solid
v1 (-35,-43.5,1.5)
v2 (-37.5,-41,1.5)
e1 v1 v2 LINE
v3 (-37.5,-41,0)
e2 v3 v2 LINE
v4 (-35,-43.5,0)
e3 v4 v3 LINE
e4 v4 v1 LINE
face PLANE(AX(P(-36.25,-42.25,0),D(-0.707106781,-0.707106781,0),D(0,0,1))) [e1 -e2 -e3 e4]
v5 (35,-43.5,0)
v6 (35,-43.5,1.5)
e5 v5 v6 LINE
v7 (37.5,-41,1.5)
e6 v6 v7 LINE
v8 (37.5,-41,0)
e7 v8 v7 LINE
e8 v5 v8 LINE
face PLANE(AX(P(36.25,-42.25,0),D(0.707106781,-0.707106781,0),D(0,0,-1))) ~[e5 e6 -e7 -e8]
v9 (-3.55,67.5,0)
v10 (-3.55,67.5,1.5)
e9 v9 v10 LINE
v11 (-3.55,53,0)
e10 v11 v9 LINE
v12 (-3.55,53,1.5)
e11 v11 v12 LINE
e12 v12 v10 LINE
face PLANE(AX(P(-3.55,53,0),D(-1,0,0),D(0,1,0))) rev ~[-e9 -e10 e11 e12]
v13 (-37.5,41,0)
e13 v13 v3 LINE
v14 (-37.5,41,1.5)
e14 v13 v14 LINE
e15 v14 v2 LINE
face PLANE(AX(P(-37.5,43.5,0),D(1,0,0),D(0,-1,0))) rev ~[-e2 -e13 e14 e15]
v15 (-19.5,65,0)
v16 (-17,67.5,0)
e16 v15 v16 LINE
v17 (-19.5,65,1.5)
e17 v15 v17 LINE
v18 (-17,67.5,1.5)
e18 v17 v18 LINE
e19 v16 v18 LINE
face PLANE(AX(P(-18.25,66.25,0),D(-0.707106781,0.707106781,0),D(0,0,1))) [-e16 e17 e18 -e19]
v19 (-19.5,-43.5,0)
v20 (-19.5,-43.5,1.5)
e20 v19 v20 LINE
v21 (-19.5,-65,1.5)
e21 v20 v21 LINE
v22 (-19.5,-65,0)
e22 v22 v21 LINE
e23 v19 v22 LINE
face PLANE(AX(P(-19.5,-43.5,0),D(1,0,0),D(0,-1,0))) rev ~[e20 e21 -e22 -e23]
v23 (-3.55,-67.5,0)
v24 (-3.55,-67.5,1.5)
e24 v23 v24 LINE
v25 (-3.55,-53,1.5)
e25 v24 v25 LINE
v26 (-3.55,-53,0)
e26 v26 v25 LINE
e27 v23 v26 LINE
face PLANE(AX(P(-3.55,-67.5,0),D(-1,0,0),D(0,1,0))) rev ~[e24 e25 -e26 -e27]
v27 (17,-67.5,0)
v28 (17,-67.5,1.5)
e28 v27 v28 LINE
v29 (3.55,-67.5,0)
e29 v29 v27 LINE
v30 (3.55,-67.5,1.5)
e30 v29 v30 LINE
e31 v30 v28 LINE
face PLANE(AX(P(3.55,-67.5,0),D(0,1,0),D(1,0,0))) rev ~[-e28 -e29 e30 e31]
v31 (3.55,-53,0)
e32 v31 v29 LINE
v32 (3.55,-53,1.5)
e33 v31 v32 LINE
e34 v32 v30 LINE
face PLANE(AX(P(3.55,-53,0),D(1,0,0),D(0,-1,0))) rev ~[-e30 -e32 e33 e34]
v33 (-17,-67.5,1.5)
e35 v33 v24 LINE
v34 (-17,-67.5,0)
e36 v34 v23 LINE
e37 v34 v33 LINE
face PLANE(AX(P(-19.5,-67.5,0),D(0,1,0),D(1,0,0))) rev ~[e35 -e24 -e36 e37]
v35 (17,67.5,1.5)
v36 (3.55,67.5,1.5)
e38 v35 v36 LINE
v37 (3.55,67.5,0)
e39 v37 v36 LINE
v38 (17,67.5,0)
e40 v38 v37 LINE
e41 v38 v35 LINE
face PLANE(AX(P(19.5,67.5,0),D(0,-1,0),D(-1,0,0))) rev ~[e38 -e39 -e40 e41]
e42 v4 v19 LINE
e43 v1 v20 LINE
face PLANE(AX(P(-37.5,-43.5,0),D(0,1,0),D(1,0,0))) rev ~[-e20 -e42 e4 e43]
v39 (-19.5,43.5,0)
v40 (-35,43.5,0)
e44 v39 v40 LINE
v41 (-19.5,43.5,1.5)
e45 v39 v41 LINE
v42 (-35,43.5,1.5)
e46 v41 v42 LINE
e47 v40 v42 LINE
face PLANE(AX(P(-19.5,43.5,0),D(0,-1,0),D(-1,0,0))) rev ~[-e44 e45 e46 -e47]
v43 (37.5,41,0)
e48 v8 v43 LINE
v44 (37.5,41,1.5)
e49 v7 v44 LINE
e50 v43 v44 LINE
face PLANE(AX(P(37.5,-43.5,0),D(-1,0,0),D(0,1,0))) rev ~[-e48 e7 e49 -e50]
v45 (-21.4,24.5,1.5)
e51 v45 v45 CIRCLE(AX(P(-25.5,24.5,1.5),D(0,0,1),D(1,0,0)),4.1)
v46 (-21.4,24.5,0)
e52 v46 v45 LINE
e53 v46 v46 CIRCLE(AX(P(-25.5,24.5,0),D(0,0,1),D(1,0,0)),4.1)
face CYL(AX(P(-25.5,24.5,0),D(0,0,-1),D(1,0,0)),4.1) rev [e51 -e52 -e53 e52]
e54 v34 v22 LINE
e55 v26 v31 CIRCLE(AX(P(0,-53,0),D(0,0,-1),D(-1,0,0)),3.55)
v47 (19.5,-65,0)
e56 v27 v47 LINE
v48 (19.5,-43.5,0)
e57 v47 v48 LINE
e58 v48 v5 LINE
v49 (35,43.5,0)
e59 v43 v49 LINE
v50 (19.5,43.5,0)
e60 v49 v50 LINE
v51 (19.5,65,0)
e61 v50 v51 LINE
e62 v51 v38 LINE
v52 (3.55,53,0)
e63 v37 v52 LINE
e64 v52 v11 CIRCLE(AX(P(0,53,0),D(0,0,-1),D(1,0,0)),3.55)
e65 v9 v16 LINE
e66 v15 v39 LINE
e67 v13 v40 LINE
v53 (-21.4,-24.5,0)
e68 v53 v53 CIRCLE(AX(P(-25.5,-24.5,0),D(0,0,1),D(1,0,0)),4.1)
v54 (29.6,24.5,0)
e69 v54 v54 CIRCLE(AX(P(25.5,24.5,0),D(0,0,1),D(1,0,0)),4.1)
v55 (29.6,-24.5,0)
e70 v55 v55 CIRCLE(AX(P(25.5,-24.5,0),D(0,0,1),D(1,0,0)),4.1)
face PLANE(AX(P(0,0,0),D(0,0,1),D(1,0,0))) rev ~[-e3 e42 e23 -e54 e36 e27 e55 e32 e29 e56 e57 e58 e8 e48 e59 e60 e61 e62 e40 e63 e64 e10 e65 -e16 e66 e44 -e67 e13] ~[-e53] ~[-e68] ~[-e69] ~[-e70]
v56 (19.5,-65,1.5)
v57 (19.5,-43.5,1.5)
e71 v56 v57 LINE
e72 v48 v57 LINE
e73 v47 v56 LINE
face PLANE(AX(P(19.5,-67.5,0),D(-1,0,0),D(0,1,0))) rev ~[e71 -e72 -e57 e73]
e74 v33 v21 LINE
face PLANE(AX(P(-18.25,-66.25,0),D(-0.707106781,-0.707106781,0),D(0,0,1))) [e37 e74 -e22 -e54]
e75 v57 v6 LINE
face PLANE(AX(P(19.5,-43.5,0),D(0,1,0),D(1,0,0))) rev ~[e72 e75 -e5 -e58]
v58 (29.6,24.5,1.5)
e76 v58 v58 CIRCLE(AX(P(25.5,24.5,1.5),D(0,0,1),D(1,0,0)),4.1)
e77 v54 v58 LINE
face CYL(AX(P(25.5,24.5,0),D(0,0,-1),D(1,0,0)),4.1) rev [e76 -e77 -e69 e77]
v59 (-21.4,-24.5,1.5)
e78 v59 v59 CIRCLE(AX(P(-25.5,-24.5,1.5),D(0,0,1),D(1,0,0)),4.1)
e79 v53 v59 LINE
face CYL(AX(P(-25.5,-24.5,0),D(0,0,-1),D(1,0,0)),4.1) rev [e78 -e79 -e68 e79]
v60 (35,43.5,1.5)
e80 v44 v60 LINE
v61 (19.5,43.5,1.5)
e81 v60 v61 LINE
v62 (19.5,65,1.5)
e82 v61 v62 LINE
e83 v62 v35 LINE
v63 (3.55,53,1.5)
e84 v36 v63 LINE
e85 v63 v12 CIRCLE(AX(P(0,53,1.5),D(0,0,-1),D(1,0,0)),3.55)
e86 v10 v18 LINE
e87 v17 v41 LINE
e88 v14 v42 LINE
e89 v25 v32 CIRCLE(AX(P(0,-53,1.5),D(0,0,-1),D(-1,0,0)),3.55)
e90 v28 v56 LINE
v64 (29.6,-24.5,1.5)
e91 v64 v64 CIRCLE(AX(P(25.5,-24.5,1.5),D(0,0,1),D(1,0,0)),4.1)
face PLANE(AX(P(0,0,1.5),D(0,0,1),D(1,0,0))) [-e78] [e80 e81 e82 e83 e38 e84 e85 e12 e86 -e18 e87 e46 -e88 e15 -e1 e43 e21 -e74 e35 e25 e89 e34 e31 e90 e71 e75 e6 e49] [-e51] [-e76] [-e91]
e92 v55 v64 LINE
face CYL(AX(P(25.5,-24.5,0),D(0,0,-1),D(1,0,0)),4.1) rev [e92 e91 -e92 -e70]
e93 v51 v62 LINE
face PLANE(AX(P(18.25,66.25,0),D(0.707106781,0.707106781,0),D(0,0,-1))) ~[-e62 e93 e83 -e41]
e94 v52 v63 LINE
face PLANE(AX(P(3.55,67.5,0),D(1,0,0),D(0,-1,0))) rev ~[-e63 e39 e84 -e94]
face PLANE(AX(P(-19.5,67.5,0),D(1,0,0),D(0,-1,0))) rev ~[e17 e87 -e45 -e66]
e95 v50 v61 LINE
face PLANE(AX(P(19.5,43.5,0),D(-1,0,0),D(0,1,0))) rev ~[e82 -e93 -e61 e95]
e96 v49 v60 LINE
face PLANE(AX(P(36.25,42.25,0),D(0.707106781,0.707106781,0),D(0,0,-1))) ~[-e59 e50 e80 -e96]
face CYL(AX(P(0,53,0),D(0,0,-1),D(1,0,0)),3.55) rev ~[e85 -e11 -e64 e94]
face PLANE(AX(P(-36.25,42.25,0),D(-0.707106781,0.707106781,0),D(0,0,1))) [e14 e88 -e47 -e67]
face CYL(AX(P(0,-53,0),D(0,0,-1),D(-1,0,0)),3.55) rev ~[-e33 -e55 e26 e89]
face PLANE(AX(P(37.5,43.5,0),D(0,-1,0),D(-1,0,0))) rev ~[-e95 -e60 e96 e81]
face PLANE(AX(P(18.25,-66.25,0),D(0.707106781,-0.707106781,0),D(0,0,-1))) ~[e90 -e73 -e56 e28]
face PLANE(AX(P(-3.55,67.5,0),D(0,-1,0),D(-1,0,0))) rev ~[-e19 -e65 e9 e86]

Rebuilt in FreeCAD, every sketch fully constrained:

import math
import FreeCAD as App
import Part
import Sketcher

V = App.Vector
Q = App.Units.Quantity


def edges_at(feature, points):
    """Names of the edges that pass closest to the given points."""
    edges = feature.Shape.Edges
    near = lambda p: min(range(len(edges)), key=lambda i: edges[i].distToShape(Part.Vertex(*p))[0])
    return sorted({f"Edge{near(p) + 1}" for p in points})

doc = App.newDocument("Part")
body = doc.addObject("PartDesign::Body", "Body")

# Sketch on XY plane
sketch1 = body.newObject("Sketcher::SketchObject", "Sketch")
sketch1.AttachmentSupport = (doc.getObject("XY_Plane"), [""])
sketch1.MapMode = "FlatFace"
sketch1.addGeometry([
    Part.LineSegment(V(3.5, -67.5, 0), V(19.5, -67.5, 0)),  # 0
    Part.LineSegment(V(19.5, -67.5, 0), V(19.5, -43.5, 0)),  # 1
    Part.LineSegment(V(19.5, -43.5, 0), V(37.5, -43.5, 0)),  # 2
    Part.LineSegment(V(37.5, -43.5, 0), V(37.5, 43.5, 0)),  # 3
    Part.LineSegment(V(37.5, 43.5, 0), V(19.5, 43.5, 0)),  # 4
    Part.LineSegment(V(19.5, 43.5, 0), V(19.5, 67.5, 0)),  # 5
    Part.LineSegment(V(19.5, 67.5, 0), V(3.5, 67.5, 0)),  # 6
    Part.LineSegment(V(3.5, 67.5, 0), V(3.5, 53, 0)),  # 7
    Part.ArcOfCircle(Part.Circle(V(0, 53, 0), V(0, 0, 1), 3.5), math.radians(180), math.radians(360)),  # 8
    Part.LineSegment(V(-3.5, 53, 0), V(-3.5, 67.5, 0)),  # 9
    Part.LineSegment(V(-3.5, 67.5, 0), V(-19.5, 67.5, 0)),  # 10
    Part.LineSegment(V(-19.5, 67.5, 0), V(-19.5, 43.5, 0)),  # 11
    Part.LineSegment(V(-19.5, 43.5, 0), V(-37.5, 43.5, 0)),  # 12
    Part.LineSegment(V(-37.5, 43.5, 0), V(-37.5, -43.5, 0)),  # 13
    Part.LineSegment(V(-37.5, -43.5, 0), V(-19.5, -43.5, 0)),  # 14
    Part.LineSegment(V(-19.5, -43.5, 0), V(-19.5, -67.5, 0)),  # 15
    Part.LineSegment(V(-19.5, -67.5, 0), V(-3.5, -67.5, 0)),  # 16
    Part.LineSegment(V(-3.5, -67.5, 0), V(-3.5, -53, 0)),  # 17
    Part.ArcOfCircle(Part.Circle(V(0, -53, 0), V(0, 0, 1), 3.5), math.radians(0), math.radians(180)),  # 18
    Part.LineSegment(V(3.5, -53, 0), V(3.5, -67.5, 0)),  # 19
    Part.Circle(V(-25.5, -24.5, 0), V(0, 0, 1), 4.1),  # 20
    Part.Circle(V(25.5, -24.5, 0), V(0, 0, 1), 4.1),  # 21
    Part.Circle(V(-25.5, 24.5, 0), V(0, 0, 1), 4.1),  # 22
    Part.Circle(V(25.5, 24.5, 0), V(0, 0, 1), 4.1),  # 23
], False)
sketch1.addConstraint([
    Sketcher.Constraint("Coincident", 0, 2, 1, 1),
    Sketcher.Constraint("Coincident", 1, 2, 2, 1),
    Sketcher.Constraint("Coincident", 2, 2, 3, 1),
    Sketcher.Constraint("Coincident", 3, 2, 4, 1),
    Sketcher.Constraint("Coincident", 4, 2, 5, 1),
    Sketcher.Constraint("Coincident", 5, 2, 6, 1),
    Sketcher.Constraint("Coincident", 6, 2, 7, 1),
    Sketcher.Constraint("Tangent", 7, 2, 8, 2),
    Sketcher.Constraint("Tangent", 8, 1, 9, 1),
    Sketcher.Constraint("Coincident", 9, 2, 10, 1),
    Sketcher.Constraint("Coincident", 10, 2, 11, 1),
    Sketcher.Constraint("Coincident", 11, 2, 12, 1),
    Sketcher.Constraint("Coincident", 12, 2, 13, 1),
    Sketcher.Constraint("Coincident", 13, 2, 14, 1),
    Sketcher.Constraint("Coincident", 14, 2, 15, 1),
    Sketcher.Constraint("Coincident", 15, 2, 16, 1),
    Sketcher.Constraint("Coincident", 16, 2, 17, 1),
    Sketcher.Constraint("Tangent", 17, 2, 18, 2),
    Sketcher.Constraint("Tangent", 18, 1, 19, 1),
    Sketcher.Constraint("Coincident", 19, 2, 0, 1),
    Sketcher.Constraint("Horizontal", 0),
    Sketcher.Constraint("Vertical", 1),
    Sketcher.Constraint("Horizontal", 2),
    Sketcher.Constraint("Vertical", 3),
    Sketcher.Constraint("Horizontal", 4),
    Sketcher.Constraint("Vertical", 5),
    Sketcher.Constraint("Horizontal", 6),
    Sketcher.Constraint("Vertical", 7),
    Sketcher.Constraint("Vertical", 9),
    Sketcher.Constraint("Horizontal", 10),
    Sketcher.Constraint("Vertical", 11),
    Sketcher.Constraint("Horizontal", 12),
    Sketcher.Constraint("Vertical", 13),
    Sketcher.Constraint("Horizontal", 14),
    Sketcher.Constraint("Vertical", 15),
    Sketcher.Constraint("Horizontal", 16),
    Sketcher.Constraint("Vertical", 17),
    Sketcher.Constraint("Vertical", 19),
    Sketcher.Constraint("Equal", 8, 18),
    Sketcher.Constraint("Equal", 20, 21),
    Sketcher.Constraint("Equal", 21, 22),
    Sketcher.Constraint("Equal", 22, 23),
    Sketcher.Constraint("Symmetric", 8, 3, 18, 3, -1, 1),
    Sketcher.Constraint("Symmetric", 21, 3, 22, 3, -1, 1),
    Sketcher.Constraint("Symmetric", 20, 3, 23, 3, -1, 1),
    Sketcher.Constraint("Symmetric", 0, 2, 10, 2, -1, 1),
    Sketcher.Constraint("Symmetric", 2, 2, 12, 2, -1, 1),
    Sketcher.Constraint("Symmetric", 4, 2, 14, 2, -1, 1),
    Sketcher.Constraint("Symmetric", 20, 3, 21, 3, -2),
    Sketcher.Constraint("Symmetric", 6, 2, 9, 2, -2),
    Sketcher.Constraint("Symmetric", 4, 2, 11, 2, -2),
    Sketcher.Constraint("Horizontal", 0, 2, 15, 2),
    Sketcher.Constraint("Diameter", 20, Q("8.2 mm")),
    Sketcher.Constraint("DistanceX", 2, 1, 2, 2, Q("18 mm")),
    Sketcher.Constraint("DistanceY", 1, 1, 1, 2, Q("24 mm")),
    Sketcher.Constraint("DistanceY", 3, 1, 3, 2, Q("87 mm")),
    Sketcher.Constraint("Radius", 8, Q("3.55 mm")),
    Sketcher.Constraint("DistanceY", 7, 2, 7, 1, Q("14.5 mm")),
    Sketcher.Constraint("DistanceX", 20, 3, 21, 3, Q("51 mm")),
    Sketcher.Constraint("DistanceY", 20, 3, 22, 3, Q("49 mm")),
    Sketcher.Constraint("DistanceX", 0, 2, 21, 3, Q("6 mm")),
])
pad1 = body.newObject("PartDesign::Pad", "Pad")
pad1.Profile = sketch1
pad1.Length = 1.5
doc.recompute()

chamfer = body.newObject("PartDesign::Chamfer", "Chamfer")
chamfer.Base = (pad1, edges_at(pad1, [
    (-37.5, 43.5, 0.75),
    (-19.5, 67.5, 0.75),
    (19.5, 67.5, 0.75),
    (37.5, 43.5, 0.75),
    (-37.5, -43.5, 0.75),
    (-19.5, -67.5, 0.75),
    (19.5, -67.5, 0.75),
    (37.5, -43.5, 0.75),
]))
chamfer.Size = 2.5

doc.recompute()
